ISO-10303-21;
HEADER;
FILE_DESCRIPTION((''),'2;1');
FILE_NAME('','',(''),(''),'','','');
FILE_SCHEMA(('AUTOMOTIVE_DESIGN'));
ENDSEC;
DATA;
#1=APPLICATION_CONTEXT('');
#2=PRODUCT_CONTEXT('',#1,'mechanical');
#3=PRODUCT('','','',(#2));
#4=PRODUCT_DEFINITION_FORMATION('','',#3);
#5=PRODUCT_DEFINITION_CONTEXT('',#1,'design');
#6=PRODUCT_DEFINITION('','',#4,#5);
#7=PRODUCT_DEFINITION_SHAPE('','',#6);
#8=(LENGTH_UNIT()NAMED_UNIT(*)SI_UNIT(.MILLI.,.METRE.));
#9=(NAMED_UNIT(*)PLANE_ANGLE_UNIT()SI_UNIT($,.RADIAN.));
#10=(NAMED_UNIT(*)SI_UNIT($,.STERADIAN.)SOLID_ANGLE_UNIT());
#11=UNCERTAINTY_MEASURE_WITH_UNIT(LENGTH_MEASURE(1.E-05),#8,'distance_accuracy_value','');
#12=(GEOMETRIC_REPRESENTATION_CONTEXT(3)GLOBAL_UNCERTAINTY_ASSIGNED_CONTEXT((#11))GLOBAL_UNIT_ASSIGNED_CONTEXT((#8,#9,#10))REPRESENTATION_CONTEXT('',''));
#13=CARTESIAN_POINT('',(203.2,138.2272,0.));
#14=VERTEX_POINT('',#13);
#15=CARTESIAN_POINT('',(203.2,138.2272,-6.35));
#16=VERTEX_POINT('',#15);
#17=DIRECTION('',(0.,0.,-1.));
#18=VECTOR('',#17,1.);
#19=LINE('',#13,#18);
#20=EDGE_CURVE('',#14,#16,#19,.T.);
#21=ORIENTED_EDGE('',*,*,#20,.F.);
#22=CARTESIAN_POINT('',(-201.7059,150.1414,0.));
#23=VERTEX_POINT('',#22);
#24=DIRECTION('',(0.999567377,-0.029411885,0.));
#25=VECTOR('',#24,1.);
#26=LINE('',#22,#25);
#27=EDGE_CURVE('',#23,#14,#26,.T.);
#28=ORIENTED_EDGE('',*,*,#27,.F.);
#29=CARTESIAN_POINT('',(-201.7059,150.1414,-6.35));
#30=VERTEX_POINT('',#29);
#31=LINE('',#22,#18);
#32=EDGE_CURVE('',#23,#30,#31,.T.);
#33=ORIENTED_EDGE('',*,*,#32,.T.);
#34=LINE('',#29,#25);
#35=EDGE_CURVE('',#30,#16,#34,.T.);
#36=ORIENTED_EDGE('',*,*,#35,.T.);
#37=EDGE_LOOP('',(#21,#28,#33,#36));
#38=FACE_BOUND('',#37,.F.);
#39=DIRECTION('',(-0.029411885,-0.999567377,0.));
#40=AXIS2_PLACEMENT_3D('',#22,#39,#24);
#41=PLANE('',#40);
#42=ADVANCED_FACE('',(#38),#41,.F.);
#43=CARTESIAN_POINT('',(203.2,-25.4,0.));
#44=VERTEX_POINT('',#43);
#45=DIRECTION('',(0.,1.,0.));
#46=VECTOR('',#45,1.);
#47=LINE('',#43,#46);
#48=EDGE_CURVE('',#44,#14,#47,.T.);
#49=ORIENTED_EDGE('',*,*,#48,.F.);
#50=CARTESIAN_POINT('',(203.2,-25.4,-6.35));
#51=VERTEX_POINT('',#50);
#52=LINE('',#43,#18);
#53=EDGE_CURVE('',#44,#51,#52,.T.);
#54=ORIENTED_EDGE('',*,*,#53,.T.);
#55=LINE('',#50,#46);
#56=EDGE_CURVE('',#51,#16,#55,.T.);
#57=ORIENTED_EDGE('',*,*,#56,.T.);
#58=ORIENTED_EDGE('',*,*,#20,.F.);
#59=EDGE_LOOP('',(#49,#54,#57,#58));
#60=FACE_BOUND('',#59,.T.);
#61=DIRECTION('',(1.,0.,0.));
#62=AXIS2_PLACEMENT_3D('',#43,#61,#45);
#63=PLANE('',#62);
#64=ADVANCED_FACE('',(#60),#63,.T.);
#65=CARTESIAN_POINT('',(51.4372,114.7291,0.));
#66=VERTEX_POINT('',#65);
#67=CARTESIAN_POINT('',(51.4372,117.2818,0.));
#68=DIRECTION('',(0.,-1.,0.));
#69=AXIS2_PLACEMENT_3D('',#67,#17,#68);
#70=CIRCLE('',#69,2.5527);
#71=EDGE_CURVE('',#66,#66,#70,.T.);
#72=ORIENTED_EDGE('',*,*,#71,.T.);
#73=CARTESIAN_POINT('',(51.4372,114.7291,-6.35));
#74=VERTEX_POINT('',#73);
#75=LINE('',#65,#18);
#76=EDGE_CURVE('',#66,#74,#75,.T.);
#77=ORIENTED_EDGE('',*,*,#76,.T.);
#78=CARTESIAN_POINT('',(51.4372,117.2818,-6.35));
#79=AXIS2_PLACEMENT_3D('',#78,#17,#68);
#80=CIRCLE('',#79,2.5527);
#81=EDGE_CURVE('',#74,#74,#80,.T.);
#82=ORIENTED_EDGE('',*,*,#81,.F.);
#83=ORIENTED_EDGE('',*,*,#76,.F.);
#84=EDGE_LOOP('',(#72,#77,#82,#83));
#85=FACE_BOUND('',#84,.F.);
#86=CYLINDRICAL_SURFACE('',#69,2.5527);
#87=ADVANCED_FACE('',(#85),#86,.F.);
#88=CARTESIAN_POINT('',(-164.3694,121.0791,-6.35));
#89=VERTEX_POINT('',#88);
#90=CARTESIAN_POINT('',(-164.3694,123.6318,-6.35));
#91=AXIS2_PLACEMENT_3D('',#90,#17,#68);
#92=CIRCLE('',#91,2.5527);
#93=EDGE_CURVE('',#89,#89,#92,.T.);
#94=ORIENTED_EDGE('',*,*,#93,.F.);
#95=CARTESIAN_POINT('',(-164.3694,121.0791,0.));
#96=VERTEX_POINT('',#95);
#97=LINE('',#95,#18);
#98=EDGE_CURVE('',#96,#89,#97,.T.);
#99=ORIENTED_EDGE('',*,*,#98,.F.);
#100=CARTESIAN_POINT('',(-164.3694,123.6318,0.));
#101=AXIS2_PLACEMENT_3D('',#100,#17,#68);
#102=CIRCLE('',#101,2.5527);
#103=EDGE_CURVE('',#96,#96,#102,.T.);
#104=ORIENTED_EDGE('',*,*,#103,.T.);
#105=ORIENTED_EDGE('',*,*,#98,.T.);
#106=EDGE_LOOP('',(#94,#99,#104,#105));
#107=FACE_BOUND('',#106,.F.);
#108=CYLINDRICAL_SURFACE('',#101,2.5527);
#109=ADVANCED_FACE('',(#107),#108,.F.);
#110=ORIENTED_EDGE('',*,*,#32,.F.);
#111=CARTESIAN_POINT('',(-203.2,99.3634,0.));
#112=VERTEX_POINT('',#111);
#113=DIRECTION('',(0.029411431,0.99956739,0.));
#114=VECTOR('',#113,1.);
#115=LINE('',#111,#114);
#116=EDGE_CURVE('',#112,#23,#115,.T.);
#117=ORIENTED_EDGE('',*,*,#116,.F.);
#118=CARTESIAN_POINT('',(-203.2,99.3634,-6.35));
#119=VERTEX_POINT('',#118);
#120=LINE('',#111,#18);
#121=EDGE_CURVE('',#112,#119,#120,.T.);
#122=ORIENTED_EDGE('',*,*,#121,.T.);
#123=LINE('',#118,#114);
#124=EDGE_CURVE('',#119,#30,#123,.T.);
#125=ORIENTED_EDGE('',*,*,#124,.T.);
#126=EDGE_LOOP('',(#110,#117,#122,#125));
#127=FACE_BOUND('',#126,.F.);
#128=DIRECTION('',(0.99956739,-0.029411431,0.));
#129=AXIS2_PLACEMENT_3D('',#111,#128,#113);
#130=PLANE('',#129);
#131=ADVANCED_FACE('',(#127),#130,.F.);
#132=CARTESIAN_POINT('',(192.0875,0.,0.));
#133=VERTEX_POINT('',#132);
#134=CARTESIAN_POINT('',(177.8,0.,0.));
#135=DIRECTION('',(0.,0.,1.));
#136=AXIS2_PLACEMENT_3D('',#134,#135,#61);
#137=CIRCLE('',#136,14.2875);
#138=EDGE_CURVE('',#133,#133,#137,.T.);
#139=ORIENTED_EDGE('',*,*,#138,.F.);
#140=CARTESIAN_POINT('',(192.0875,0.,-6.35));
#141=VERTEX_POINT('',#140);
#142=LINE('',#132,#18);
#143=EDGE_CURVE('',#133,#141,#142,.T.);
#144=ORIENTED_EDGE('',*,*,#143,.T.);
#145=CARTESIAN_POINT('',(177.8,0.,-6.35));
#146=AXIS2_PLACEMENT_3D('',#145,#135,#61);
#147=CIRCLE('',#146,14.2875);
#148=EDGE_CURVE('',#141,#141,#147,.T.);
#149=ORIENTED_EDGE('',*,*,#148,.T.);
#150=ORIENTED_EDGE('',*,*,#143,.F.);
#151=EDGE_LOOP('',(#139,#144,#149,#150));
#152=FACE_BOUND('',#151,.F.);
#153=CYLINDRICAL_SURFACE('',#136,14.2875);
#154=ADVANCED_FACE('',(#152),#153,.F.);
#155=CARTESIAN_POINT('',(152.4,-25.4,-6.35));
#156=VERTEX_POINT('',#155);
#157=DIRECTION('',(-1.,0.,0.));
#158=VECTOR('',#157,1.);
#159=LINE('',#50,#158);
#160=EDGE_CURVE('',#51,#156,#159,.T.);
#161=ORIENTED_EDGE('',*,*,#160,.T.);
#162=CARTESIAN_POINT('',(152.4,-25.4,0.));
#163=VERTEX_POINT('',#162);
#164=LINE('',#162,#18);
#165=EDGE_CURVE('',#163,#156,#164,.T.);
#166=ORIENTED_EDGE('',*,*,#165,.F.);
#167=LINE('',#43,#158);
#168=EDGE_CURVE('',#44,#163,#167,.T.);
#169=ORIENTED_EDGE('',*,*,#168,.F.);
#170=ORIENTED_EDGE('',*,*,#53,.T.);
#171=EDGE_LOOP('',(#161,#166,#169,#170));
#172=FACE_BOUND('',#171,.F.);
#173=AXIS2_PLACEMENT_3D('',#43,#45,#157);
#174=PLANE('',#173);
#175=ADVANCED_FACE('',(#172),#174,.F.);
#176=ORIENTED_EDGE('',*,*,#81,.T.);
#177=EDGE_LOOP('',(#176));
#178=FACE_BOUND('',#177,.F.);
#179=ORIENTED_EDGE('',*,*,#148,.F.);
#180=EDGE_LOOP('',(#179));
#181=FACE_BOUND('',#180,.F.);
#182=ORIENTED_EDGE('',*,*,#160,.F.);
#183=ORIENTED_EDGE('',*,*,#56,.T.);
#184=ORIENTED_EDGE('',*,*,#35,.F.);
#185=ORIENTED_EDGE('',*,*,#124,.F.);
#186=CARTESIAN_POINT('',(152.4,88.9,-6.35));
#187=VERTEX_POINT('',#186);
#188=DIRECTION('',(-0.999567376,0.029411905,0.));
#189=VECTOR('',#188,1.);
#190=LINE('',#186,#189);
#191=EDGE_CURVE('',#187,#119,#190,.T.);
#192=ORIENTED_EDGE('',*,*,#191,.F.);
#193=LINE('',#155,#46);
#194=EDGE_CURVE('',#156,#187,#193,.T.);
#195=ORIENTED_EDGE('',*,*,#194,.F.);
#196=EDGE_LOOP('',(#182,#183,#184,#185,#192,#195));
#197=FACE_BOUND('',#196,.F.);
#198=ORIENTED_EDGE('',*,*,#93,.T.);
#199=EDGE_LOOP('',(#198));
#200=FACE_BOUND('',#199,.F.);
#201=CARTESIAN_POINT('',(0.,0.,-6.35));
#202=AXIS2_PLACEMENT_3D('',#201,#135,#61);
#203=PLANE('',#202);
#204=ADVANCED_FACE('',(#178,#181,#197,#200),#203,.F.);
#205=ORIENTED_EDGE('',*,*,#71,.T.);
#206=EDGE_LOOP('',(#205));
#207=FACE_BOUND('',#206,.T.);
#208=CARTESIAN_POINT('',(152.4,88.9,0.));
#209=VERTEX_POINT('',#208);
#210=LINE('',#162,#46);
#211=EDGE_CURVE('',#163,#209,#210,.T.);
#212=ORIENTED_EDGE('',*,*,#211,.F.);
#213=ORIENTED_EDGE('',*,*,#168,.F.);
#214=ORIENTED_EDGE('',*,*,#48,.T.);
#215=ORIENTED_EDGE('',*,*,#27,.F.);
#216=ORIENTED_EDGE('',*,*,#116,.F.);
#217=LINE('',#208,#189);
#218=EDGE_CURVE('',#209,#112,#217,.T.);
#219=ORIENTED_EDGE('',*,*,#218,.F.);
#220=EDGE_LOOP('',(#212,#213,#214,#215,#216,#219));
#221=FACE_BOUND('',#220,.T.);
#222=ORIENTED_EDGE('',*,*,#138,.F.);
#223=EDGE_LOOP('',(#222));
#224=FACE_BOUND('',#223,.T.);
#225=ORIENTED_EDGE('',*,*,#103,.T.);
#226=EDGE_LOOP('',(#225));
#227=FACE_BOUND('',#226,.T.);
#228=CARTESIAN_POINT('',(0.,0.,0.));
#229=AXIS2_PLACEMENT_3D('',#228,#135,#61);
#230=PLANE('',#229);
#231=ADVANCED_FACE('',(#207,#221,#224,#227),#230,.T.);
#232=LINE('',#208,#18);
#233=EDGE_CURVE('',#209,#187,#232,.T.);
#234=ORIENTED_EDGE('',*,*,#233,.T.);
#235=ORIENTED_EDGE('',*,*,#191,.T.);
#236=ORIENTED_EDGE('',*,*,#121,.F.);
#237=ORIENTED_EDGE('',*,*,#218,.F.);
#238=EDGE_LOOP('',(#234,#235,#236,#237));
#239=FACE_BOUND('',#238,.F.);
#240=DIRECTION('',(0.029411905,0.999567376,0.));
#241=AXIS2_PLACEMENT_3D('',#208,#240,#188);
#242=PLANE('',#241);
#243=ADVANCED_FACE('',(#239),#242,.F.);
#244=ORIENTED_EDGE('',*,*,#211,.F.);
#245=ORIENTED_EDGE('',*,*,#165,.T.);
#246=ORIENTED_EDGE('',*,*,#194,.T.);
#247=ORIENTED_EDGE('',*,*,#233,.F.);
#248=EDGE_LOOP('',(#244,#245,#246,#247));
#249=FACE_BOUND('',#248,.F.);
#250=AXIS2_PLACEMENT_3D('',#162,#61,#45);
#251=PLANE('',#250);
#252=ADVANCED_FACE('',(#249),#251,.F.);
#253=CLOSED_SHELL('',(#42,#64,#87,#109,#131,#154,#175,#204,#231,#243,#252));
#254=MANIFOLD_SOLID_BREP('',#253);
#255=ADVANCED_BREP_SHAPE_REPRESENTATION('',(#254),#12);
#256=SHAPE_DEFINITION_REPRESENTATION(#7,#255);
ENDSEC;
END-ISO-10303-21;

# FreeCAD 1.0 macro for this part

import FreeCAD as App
import Part
import Sketcher
Q = App.Units.Quantity


def add_polygon(sketch, points):
    """Adds a closed chain of lines whose ends are joined by coincident constraints."""
    first, n = sketch.GeometryCount, len(points)
    for a, b in zip(points, points[1:] + points[:1]):
        sketch.addGeometry(Part.LineSegment(App.Vector(*a, 0), App.Vector(*b, 0)), False)
    for i in range(n):
        sketch.addConstraint(Sketcher.Constraint("Coincident", first + i, 2, first + (i + 1) % n, 1))

doc = App.newDocument("Part")
body = doc.addObject("PartDesign::Body", "Body")

# Sketch on XY plane
sketch1 = body.newObject("Sketcher::SketchObject", "Sketch")
sketch1.AttachmentSupport = (doc.getObject("XY_Plane"), [""])
sketch1.MapMode = "FlatFace"
add_polygon(sketch1, [(152, -25), (203, -25), (203, 138), (-202, 150), (-203, 99), (152, 89)])  # lines 0-5
sketch1.addGeometry(Part.Circle(App.Vector(178, 0, 0), App.Vector(0, 0, 1), 14), False)  # 6
sketch1.addConstraint([
    Sketcher.Constraint("Horizontal", 0),
    Sketcher.Constraint("Vertical", 1),
    Sketcher.Constraint("Vertical", 5),
    Sketcher.Constraint("PointOnObject", 6, 3, -1),
    Sketcher.Constraint("Perpendicular", 2, 3),
    Sketcher.Constraint("Perpendicular", 3, 4),
    Sketcher.Constraint("DistanceX", 0, 1, 0, 2, Q("2 in")),
    Sketcher.Constraint("Distance", 3, Q("2 in")),
    Sketcher.Constraint("Diameter", 6, Q("1.125 in")),
    Sketcher.Constraint("DistanceY", 5, 2, 5, 1, Q("4.5 in")),
    Sketcher.Constraint("DistanceY", 0, 2, -1, 1, Q("1 in")),
    Sketcher.Constraint("DistanceX", 6, 3, 0, 2, Q("1 in")),
    Sketcher.Constraint("DistanceX", 3, 2, 1, 2, Q("16 in")),
    Sketcher.Constraint("DistanceX", -1, 1, 6, 3, Q("7 in")),
    Sketcher.Constraint("DistanceY", 1, 1, 1, 2, 163.6272),
])
pad1 = body.newObject("PartDesign::Pad", "Pad")
pad1.Profile = sketch1
pad1.Length = Q("0.25 in")
pad1.Reversed = True

# Sketch on XY plane
sketch2 = body.newObject("Sketcher::SketchObject", "Sketch001")
sketch2.AttachmentSupport = (doc.getObject("XY_Plane"), [""])
sketch2.MapMode = "FlatFace"
sketch2.addGeometry([
    Part.Circle(App.Vector(51.4, 117.3, 0), App.Vector(0, 0, 1), 2.6),
    Part.Circle(App.Vector(-164.4, 123.6, 0), App.Vector(0, 0, 1), 2.6),
], False)
sketch2.addConstraint([
    Sketcher.Constraint("Equal", 0, 1),
    Sketcher.Constraint("Diameter", 0, Q("0.201 in")),
    Sketcher.Constraint("DistanceY", 0, 3, 1, 3, Q("0.25 in")),
    Sketcher.Constraint("DistanceY", -1, 1, 0, 3, Q("4.6174 in")),
    Sketcher.Constraint("DistanceX", -1, 1, 0, 3, 51.4372),
    Sketcher.Constraint("DistanceX", 1, 3, -1, 1, 164.3694),
])
doc.recompute()
hole = body.newObject("PartDesign::Hole", "Hole")
hole.Profile = sketch2
hole.ThreadType = "None"
hole.Diameter = Q("0.201 in")
hole.DepthType = "ThroughAll"

doc.recompute()
